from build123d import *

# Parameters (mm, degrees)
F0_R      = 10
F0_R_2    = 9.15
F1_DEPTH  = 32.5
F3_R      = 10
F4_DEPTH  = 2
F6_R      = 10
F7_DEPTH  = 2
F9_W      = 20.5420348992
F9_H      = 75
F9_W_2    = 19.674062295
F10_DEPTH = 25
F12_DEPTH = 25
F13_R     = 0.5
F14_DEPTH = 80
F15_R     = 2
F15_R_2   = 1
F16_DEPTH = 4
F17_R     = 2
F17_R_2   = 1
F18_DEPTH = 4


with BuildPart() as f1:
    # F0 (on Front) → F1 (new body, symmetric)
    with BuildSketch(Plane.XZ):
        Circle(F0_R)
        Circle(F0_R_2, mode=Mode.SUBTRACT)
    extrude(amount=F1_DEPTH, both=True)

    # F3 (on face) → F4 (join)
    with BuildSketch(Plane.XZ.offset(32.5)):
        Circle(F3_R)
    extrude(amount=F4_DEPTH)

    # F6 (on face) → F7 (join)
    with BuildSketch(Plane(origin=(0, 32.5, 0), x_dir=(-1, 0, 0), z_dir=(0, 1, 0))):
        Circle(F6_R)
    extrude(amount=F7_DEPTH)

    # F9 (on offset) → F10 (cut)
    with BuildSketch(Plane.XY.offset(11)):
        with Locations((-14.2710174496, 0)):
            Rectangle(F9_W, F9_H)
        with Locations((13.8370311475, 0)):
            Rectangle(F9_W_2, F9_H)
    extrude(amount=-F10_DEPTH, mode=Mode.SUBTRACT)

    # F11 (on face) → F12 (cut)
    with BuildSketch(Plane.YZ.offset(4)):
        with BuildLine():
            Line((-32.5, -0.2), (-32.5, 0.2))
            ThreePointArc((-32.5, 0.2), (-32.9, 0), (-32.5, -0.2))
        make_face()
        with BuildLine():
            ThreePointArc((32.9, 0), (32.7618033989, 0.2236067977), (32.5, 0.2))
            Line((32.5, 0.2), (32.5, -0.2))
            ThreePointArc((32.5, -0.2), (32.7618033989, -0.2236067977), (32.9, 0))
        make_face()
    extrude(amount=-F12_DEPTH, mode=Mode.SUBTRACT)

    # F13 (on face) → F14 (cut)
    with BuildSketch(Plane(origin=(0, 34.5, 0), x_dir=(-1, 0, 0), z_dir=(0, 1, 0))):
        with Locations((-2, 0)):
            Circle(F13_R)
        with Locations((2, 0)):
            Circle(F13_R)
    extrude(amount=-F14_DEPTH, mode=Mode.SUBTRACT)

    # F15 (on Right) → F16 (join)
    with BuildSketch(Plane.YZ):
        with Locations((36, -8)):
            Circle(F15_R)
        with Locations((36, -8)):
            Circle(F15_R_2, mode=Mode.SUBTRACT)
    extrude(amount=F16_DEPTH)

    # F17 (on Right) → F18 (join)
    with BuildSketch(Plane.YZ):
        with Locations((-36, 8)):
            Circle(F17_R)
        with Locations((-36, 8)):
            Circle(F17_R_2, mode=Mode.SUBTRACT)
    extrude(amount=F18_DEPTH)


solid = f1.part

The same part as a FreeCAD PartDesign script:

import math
import FreeCAD as App
import Part
import Sketcher
from FreeCAD import Vector
Q = App.Units.Quantity


def add_polygon(sketch, points):
    """Adds a closed chain of lines whose ends are joined by coincident constraints."""
    first, n = sketch.GeometryCount, len(points)
    for a, b in zip(points, points[1:] + points[:1]):
        sketch.addGeometry(Part.LineSegment(App.Vector(*a, 0), App.Vector(*b, 0)), False)
    for i in range(n):
        sketch.addConstraint(Sketcher.Constraint("Coincident", first + i, 2, first + (i + 1) % n, 1))

doc = App.newDocument("Part")
body = doc.addObject("PartDesign::Body", "Body")

sketch1 = doc.addObject("Sketcher::SketchObject", "Sketch")
body.addObject(sketch1)
sketch1.AttachmentSupport = (doc.XZ_Plane, [""])
sketch1.MapMode = "FlatFace"
sketch1.addGeometry([
    Part.Circle(Vector(0, 0, 0), Vector(0, 0, 1), 10),
    Part.Circle(Vector(0, 0, 0), Vector(0, 0, 1), 9.15),
], False)
sketch1.addConstraint([
    Sketcher.Constraint("Coincident", 0, 3, -1, 1),
    Sketcher.Constraint("Coincident", 1, 3, -1, 1),
    Sketcher.Constraint("Diameter", 0, Q("20 mm")),
    Sketcher.Constraint("Diameter", 1, Q("18.3 mm")),
])
pad1 = doc.addObject("PartDesign::Pad", "Pad")
body.addObject(pad1)
pad1.Profile = sketch1
pad1.Length = 65
pad1.Midplane = True

sketch2 = doc.addObject("Sketcher::SketchObject", "Sketch001")
body.addObject(sketch2)
sketch2.AttachmentSupport = (doc.XZ_Plane, [""])
sketch2.MapMode = "FlatFace"
sketch2.AttachmentOffset = App.Placement(Vector(0, 0, 32.5), App.Rotation())
sketch2.addGeometry(Part.Circle(Vector(0, 0, 0), Vector(0, 0, 1), 10), False)
sketch2.addConstraint([
    Sketcher.Constraint("Coincident", 0, 3, -1, 1),
    Sketcher.Constraint("Diameter", 0, Q("20 mm")),
])
pad2 = doc.addObject("PartDesign::Pad", "Pad001")
body.addObject(pad2)
pad2.Profile = sketch2
pad2.Length = 2

sketch3 = doc.addObject("Sketcher::SketchObject", "Sketch002")
body.addObject(sketch3)
sketch3.AttachmentSupport = (doc.XZ_Plane, [""])
sketch3.MapMode = "FlatFace"
sketch3.AttachmentOffset = App.Placement(Vector(0, 0, -32.5), App.Rotation())
sketch3.addGeometry(Part.Circle(Vector(0, 0, 0), Vector(0, 0, 1), 10), False)
sketch3.addConstraint([
    Sketcher.Constraint("Coincident", 0, 3, -1, 1),
    Sketcher.Constraint("Diameter", 0, Q("20 mm")),
])
pad3 = doc.addObject("PartDesign::Pad", "Pad002")
body.addObject(pad3)
pad3.Profile = sketch3
pad3.Length = 2
pad3.Reversed = True

sketch4 = doc.addObject("Sketcher::SketchObject", "Sketch003")
body.addObject(sketch4)
sketch4.AttachmentSupport = (doc.XY_Plane, [""])
sketch4.MapMode = "FlatFace"
sketch4.AttachmentOffset = App.Placement(Vector(0, 0, 11), App.Rotation())
add_polygon(sketch4, [(-24.542035, 37.5), (-24.542035, -37.5), (-4, -37.5), (-4, 37.5)])
add_polygon(sketch4, [(4, 37.5), (4, -37.5), (23.674062, -37.5), (23.674062, 37.5)])
sketch4.addConstraint([
    Sketcher.Constraint("Vertical", 0),
    Sketcher.Constraint("Horizontal", 1),
    Sketcher.Constraint("Vertical", 2),
    Sketcher.Constraint("Horizontal", 3),
    Sketcher.Constraint("Vertical", 4),
    Sketcher.Constraint("Horizontal", 5),
    Sketcher.Constraint("Vertical", 6),
    Sketcher.Constraint("Horizontal", 7),
    Sketcher.Constraint("Symmetric", 2, 2, 4, 2, -1, 1),
    Sketcher.Constraint("Horizontal", 1, 2, 4, 2),
    Sketcher.Constraint("Horizontal", 3, 2, 6, 2),
    Sketcher.Constraint("DistanceY", 0, 2, 0, 1, Q("75 mm")),
    Sketcher.Constraint("DistanceX", 1, 2, -1, 1, Q("4 mm")),
    Sketcher.Constraint("DistanceX", 1, 1, 1, 2, Q("20.542035 mm")),
    Sketcher.Constraint("DistanceX", 5, 1, 5, 2, Q("19.674062 mm")),
])
pocket1 = doc.addObject("PartDesign::Pocket", "Pocket")
body.addObject(pocket1)
pocket1.Profile = sketch4
pocket1.Length = 25

sketch5 = doc.addObject("Sketcher::SketchObject", "Sketch004")
body.addObject(sketch5)
sketch5.AttachmentSupport = (doc.YZ_Plane, [""])
sketch5.MapMode = "FlatFace"
sketch5.AttachmentOffset = App.Placement(Vector(0, 0, 4), App.Rotation())
sketch5.addGeometry([
    Part.LineSegment(Vector(-32.5, -0.2, 0), Vector(-32.5, 0.2, 0)),
    Part.ArcOfCircle(Part.Circle(Vector(-32.65, 0, 0), Vector(0, 0, 1), 0.25), math.radians(53.130102), math.radians(306.869898)),
    Part.ArcOfCircle(Part.Circle(Vector(32.65, 0, 0), Vector(0, 0, 1), 0.25), math.radians(0), math.radians(126.869898)),
    Part.LineSegment(Vector(32.5, 0.2, 0), Vector(32.5, -0.2, 0)),
    Part.ArcOfCircle(Part.Circle(Vector(32.65, 0, 0), Vector(0, 0, 1), 0.25), math.radians(-126.869898), math.radians(0)),
], False)
sketch5.addConstraint([
    Sketcher.Constraint("Coincident", 0, 1, 1, 2),
    Sketcher.Constraint("Coincident", 1, 1, 0, 2),
    Sketcher.Constraint("Coincident", 2, 2, 3, 1),
    Sketcher.Constraint("Coincident", 3, 2, 4, 1),
    Sketcher.Constraint("Tangent", 4, 2, 2, 1),
    Sketcher.Constraint("Vertical", 0),
    Sketcher.Constraint("Vertical", 3),
    Sketcher.Constraint("Equal", 1, 2),
    Sketcher.Constraint("Equal", 2, 4),
    Sketcher.Constraint("Symmetric", 1, 3, 2, 3, -1, 1),
    Sketcher.Constraint("Symmetric", 1, 1, 2, 2, -2),
    Sketcher.Constraint("PointOnObject", 4, 2, -1),
    Sketcher.Constraint("Radius", 1, Q("0.25 mm")),
    Sketcher.Constraint("DistanceY", 0, 1, 0, 2, Q("0.4 mm")),
    Sketcher.Constraint("DistanceX", 1, 1, 2, 2, Q("65 mm")),
])
pocket2 = doc.addObject("PartDesign::Pocket", "Pocket001")
body.addObject(pocket2)
pocket2.Profile = sketch5
pocket2.Length = 25

sketch6 = doc.addObject("Sketcher::SketchObject", "Sketch005")
body.addObject(sketch6)
sketch6.AttachmentSupport = (doc.XZ_Plane, [""])
sketch6.MapMode = "FlatFace"
sketch6.AttachmentOffset = App.Placement(Vector(0, 0, -34.5), App.Rotation())
sketch6.addGeometry([
    Part.Circle(Vector(2, 0, 0), Vector(0, 0, 1), 0.5),
    Part.Circle(Vector(-2, 0, 0), Vector(0, 0, 1), 0.5),
], False)
sketch6.addConstraint([
    Sketcher.Constraint("Equal", 0, 1),
    Sketcher.Constraint("Symmetric", 0, 3, 1, 3, -1, 1),
    Sketcher.Constraint("PointOnObject", 0, 3, -1),
    Sketcher.Constraint("Diameter", 0, Q("1 mm")),
    Sketcher.Constraint("DistanceX", -1, 1, 0, 3, Q("2 mm")),
])
pocket3 = doc.addObject("PartDesign::Pocket", "Pocket002")
body.addObject(pocket3)
pocket3.Profile = sketch6
pocket3.Length = 80
pocket3.Reversed = True

sketch7 = doc.addObject("Sketcher::SketchObject", "Sketch006")
body.addObject(sketch7)
sketch7.AttachmentSupport = (doc.YZ_Plane, [""])
sketch7.MapMode = "FlatFace"
sketch7.addGeometry([
    Part.Circle(Vector(36, -8, 0), Vector(0, 0, 1), 2),
    Part.Circle(Vector(36, -8, 0), Vector(0, 0, 1), 1),
], False)
sketch7.addConstraint([
    Sketcher.Constraint("Coincident", 1, 3, 0, 3),
    Sketcher.Constraint("Diameter", 0, Q("4 mm")),
    Sketcher.Constraint("Diameter", 1, Q("2 mm")),
    Sketcher.Constraint("DistanceX", -1, 1, 0, 3, Q("36 mm")),
    Sketcher.Constraint("DistanceY", 0, 3, -1, 1, Q("8 mm")),
])
pad4 = doc.addObject("PartDesign::Pad", "Pad003")
body.addObject(pad4)
pad4.Profile = sketch7
pad4.Length = 4

sketch8 = doc.addObject("Sketcher::SketchObject", "Sketch007")
body.addObject(sketch8)
sketch8.AttachmentSupport = (doc.YZ_Plane, [""])
sketch8.MapMode = "FlatFace"
sketch8.addGeometry([
    Part.Circle(Vector(-36, 8, 0), Vector(0, 0, 1), 2),
    Part.Circle(Vector(-36, 8, 0), Vector(0, 0, 1), 1),
], False)
sketch8.addConstraint([
    Sketcher.Constraint("Coincident", 1, 3, 0, 3),
    Sketcher.Constraint("Diameter", 0, Q("4 mm")),
    Sketcher.Constraint("Diameter", 1, Q("2 mm")),
    Sketcher.Constraint("DistanceX", 0, 3, -1, 1, Q("36 mm")),
    Sketcher.Constraint("DistanceY", -1, 1, 0, 3, Q("8 mm")),
])
pad5 = doc.addObject("PartDesign::Pad", "Pad004")
body.addObject(pad5)
pad5.Profile = sketch8
pad5.Length = 4

doc.recompute()
